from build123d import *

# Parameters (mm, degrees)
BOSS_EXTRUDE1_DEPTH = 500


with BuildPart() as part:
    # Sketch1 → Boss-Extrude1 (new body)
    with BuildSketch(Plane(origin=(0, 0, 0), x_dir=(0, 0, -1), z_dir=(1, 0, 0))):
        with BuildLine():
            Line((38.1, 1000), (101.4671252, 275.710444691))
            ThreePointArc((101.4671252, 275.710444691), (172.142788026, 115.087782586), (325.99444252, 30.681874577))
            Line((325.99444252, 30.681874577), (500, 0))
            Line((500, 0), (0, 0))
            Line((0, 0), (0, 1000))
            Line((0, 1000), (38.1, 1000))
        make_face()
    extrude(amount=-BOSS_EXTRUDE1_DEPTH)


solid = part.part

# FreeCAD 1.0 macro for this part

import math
import FreeCAD as App
import Part
import Sketcher
Q = App.Units.Quantity

doc = App.newDocument("Part")
body = doc.addObject("PartDesign::Body", "Body")

sketch1 = doc.addObject("Sketcher::SketchObject", "Sketch")
body.addObject(sketch1)
sketch1.AttachmentSupport = (doc.YZ_Plane, [""])
sketch1.MapMode = "FlatFace"
sketch1.addGeometry(Part.LineSegment(App.Vector(276, -101, 0), App.Vector(1000, -38, 0)), False)
sketch1.addGeometry(Part.LineSegment(App.Vector(1000, -38, 0), App.Vector(1000, 0, 0)), False)
sketch1.addGeometry(Part.LineSegment(App.Vector(1000, 0, 0), App.Vector(0, 0, 0)), False)
sketch1.addGeometry(Part.LineSegment(App.Vector(0, 0, 0), App.Vector(0, -500, 0)), False)
sketch1.addGeometry(Part.LineSegment(App.Vector(0, -500, 0), App.Vector(31, -326, 0)), False)
sketch1.addGeometry(Part.ArcOfCircle(Part.Circle(App.Vector(300, -373, 0), App.Vector(0, 0, 1), 273), math.radians(95), math.radians(170)), False)
sketch1.addConstraint(Sketcher.Constraint("Coincident", 0, 2, 1, 1))
sketch1.addConstraint(Sketcher.Constraint("Coincident", 1, 2, 2, 1))
sketch1.addConstraint(Sketcher.Constraint("Coincident", 2, 2, 3, 1))
sketch1.addConstraint(Sketcher.Constraint("Coincident", 3, 2, 4, 1))
sketch1.addConstraint(Sketcher.Constraint("Tangent", 4, 2, 5, 2))
sketch1.addConstraint(Sketcher.Constraint("Tangent", 5, 1, 0, 1))
sketch1.addConstraint(Sketcher.Constraint("Vertical", 1))
sketch1.addConstraint(Sketcher.Constraint("Horizontal", 2))
sketch1.addConstraint(Sketcher.Constraint("Vertical", 3))
sketch1.addConstraint(Sketcher.Constraint("Coincident", 2, 2, -1, 1))
sketch1.addConstraint(Sketcher.Constraint("DistanceX", 2, 2, 2, 1, 1000.0))
sketch1.addConstraint(Sketcher.Constraint("DistanceY", 3, 2, 3, 1, 500.0))
sketch1.addConstraint(Sketcher.Constraint("Angle", 0, Q("5 deg")))
sketch1.addConstraint(Sketcher.Constraint("Angle", 4, Q("80 deg")))
sketch1.addConstraint(Sketcher.Constraint("DistanceY", 1, 1, 1, 2, 38.1))
sketch1.addConstraint(Sketcher.Constraint("Radius", 5, 272.966102))
pad1 = doc.addObject("PartDesign::Pad", "Pad")
body.addObject(pad1)
pad1.Profile = sketch1
pad1.Length = 500
pad1.Reversed = True

doc.recompute()
